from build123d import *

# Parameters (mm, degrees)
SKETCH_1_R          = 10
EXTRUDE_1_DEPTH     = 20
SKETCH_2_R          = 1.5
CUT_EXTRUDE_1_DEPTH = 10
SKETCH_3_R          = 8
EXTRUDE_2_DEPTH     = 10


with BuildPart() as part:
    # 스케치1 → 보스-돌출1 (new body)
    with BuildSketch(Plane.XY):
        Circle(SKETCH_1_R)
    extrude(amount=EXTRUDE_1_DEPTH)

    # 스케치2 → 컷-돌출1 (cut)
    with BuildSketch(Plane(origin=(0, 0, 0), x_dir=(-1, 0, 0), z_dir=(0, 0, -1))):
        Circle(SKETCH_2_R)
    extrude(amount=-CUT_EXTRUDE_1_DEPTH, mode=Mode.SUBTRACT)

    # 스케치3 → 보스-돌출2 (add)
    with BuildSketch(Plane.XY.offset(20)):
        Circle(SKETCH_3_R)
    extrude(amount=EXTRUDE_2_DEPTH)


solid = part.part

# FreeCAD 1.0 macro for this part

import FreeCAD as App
import Part
import Sketcher
from FreeCAD import Vector

doc = App.newDocument("Part")
body = doc.addObject("PartDesign::Body", "Body")

sketch1 = body.newObject("Sketcher::SketchObject", "Sketch")
sketch1.AttachmentSupport = (doc.getObject("XY_Plane"), [""])
sketch1.MapMode = "FlatFace"
sketch1.addGeometry(Part.Circle(Vector(0, 0, 0), Vector(0, 0, 1), 10), False)
sketch1.addConstraint([
    Sketcher.Constraint("Coincident", 0, 3, -1, 1),
    Sketcher.Constraint("Diameter", 0, 20.0),
])
pad1 = body.newObject("PartDesign::Pad", "Pad")
pad1.Profile = sketch1
pad1.Length = 20

sketch2 = body.newObject("Sketcher::SketchObject", "Sketch001")
sketch2.AttachmentSupport = (doc.getObject("XY_Plane"), [""])
sketch2.MapMode = "FlatFace"
sketch2.addGeometry(Part.Circle(Vector(0, 0, 0), Vector(0, 0, 1), 1.5), False)
sketch2.addConstraint([
    Sketcher.Constraint("Coincident", 0, 3, -1, 1),
    Sketcher.Constraint("Diameter", 0, 3.0),
])
pocket1 = body.newObject("PartDesign::Pocket", "Pocket")
pocket1.Profile = sketch2
pocket1.Length = 10
pocket1.Reversed = True

sketch3 = body.newObject("Sketcher::SketchObject", "Sketch002")
sketch3.AttachmentSupport = (doc.getObject("XY_Plane"), [""])
sketch3.MapMode = "FlatFace"
sketch3.AttachmentOffset = App.Placement(Vector(0, 0, 20), App.Rotation())
sketch3.addGeometry(Part.Circle(Vector(0, 0, 0), Vector(0, 0, 1), 8), False)
sketch3.addConstraint([
    Sketcher.Constraint("Coincident", 0, 3, -1, 1),
    Sketcher.Constraint("Diameter", 0, 16.0),
])
pad2 = body.newObject("PartDesign::Pad", "Pad001")
pad2.Profile = sketch3
pad2.Length = 10

doc.recompute()
